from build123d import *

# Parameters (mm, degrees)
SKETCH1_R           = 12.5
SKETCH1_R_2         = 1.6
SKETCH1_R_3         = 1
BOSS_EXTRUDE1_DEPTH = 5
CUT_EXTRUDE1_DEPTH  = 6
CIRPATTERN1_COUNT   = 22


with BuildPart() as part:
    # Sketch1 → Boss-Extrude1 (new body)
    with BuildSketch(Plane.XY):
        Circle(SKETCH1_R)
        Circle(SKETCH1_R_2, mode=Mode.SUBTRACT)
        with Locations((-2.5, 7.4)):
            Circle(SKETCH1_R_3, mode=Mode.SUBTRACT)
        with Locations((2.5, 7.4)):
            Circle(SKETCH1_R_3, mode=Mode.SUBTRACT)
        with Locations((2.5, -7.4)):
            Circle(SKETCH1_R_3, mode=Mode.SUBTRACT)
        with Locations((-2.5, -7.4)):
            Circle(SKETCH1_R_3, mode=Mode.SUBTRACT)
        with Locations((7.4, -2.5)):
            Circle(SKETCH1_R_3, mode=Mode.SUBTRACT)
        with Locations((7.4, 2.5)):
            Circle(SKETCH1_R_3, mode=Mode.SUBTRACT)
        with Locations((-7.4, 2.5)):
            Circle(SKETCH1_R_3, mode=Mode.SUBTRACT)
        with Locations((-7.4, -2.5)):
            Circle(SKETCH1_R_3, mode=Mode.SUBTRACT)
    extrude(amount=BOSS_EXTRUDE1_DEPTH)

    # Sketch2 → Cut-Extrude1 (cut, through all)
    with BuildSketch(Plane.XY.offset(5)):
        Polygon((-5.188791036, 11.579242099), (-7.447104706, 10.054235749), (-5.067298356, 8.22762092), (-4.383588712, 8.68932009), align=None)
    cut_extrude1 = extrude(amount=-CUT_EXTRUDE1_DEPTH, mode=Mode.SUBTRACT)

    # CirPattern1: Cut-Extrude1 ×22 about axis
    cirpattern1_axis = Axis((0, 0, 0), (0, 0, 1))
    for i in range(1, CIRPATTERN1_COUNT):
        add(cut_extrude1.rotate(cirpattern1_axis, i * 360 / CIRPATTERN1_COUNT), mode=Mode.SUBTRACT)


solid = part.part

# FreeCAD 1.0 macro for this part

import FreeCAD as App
import Part
import Sketcher
from FreeCAD import Vector
Q = App.Units.Quantity

doc = App.newDocument("Part")
body = doc.addObject("PartDesign::Body", "Body")

sketch1 = body.newObject("Sketcher::SketchObject", "Sketch")
sketch1.AttachmentSupport = (doc.getObject("XY_Plane"), [""])
sketch1.MapMode = "FlatFace"
sketch1.addGeometry([
    Part.Circle(Vector(0, 0, 0), Vector(0, 0, 1), 12.5),
    Part.Circle(Vector(-2.5, -7.4, 0), Vector(0, 0, 1), 1),
    Part.Circle(Vector(-7.4, -2.5, 0), Vector(0, 0, 1), 1),
    Part.Circle(Vector(2.5, -7.4, 0), Vector(0, 0, 1), 1),
    Part.Circle(Vector(7.4, -2.5, 0), Vector(0, 0, 1), 1),
    Part.Circle(Vector(-7.4, 2.5, 0), Vector(0, 0, 1), 1),
    Part.Circle(Vector(-2.5, 7.4, 0), Vector(0, 0, 1), 1),
    Part.Circle(Vector(0, 0, 0), Vector(0, 0, 1), 1.6),
    Part.Circle(Vector(7.4, 2.5, 0), Vector(0, 0, 1), 1),
    Part.Circle(Vector(2.5, 7.4, 0), Vector(0, 0, 1), 1),
], False)
sketch1.addConstraint([
    Sketcher.Constraint("Coincident", 0, 3, -1, 1),
    Sketcher.Constraint("Coincident", 7, 3, -1, 1),
    Sketcher.Constraint("Equal", 1, 2),
    Sketcher.Constraint("Equal", 2, 3),
    Sketcher.Constraint("Equal", 3, 4),
    Sketcher.Constraint("Equal", 4, 5),
    Sketcher.Constraint("Equal", 5, 6),
    Sketcher.Constraint("Equal", 6, 8),
    Sketcher.Constraint("Equal", 8, 9),
    Sketcher.Constraint("Symmetric", 4, 3, 5, 3, -1, 1),
    Sketcher.Constraint("Symmetric", 3, 3, 6, 3, -1, 1),
    Sketcher.Constraint("Symmetric", 2, 3, 8, 3, -1, 1),
    Sketcher.Constraint("Symmetric", 1, 3, 9, 3, -1, 1),
    Sketcher.Constraint("Symmetric", 1, 3, 3, 3, -2),
    Sketcher.Constraint("Symmetric", 2, 3, 4, 3, -2),
    Sketcher.Constraint("Diameter", 0, Q("25 mm")),
    Sketcher.Constraint("Diameter", 1, Q("2 mm")),
    Sketcher.Constraint("Diameter", 7, Q("3.2 mm")),
    Sketcher.Constraint("DistanceX", 1, 3, 3, 3, Q("5 mm")),
    Sketcher.Constraint("DistanceY", 2, 3, 5, 3, Q("5 mm")),
    Sketcher.Constraint("DistanceY", 1, 3, -1, 1, Q("7.4 mm")),
    Sketcher.Constraint("DistanceX", 2, 3, -1, 1, Q("7.4 mm")),
])
pad1 = body.newObject("PartDesign::Pad", "Pad")
pad1.Profile = sketch1
pad1.Length = 5

sketch2 = body.newObject("Sketcher::SketchObject", "Sketch001")
sketch2.AttachmentSupport = (doc.getObject("XY_Plane"), [""])
sketch2.MapMode = "FlatFace"
sketch2.AttachmentOffset = App.Placement(Vector(0, 0, 5), App.Rotation())
sketch2.addGeometry([
    Part.LineSegment(Vector(-5.2, 11.6, 0), Vector(-7.4, 10.1, 0)),
    Part.LineSegment(Vector(-7.4, 10.1, 0), Vector(-5.1, 8.2, 0)),
    Part.LineSegment(Vector(-5.1, 8.2, 0), Vector(-4.4, 8.7, 0)),
    Part.LineSegment(Vector(-4.4, 8.7, 0), Vector(-5.2, 11.6, 0)),
], False)
sketch2.addConstraint([
    Sketcher.Constraint("Coincident", 0, 2, 1, 1),
    Sketcher.Constraint("Coincident", 1, 2, 2, 1),
    Sketcher.Constraint("Coincident", 2, 2, 3, 1),
    Sketcher.Constraint("Coincident", 3, 2, 0, 1),
    Sketcher.Constraint("Parallel", 0, 2),
    Sketcher.Constraint("Equal", 1, 3),
    Sketcher.Constraint("Distance", 1, Q("3 mm")),
    Sketcher.Constraint("Distance", 0, Q("2.725 mm")),
    Sketcher.Constraint("Distance", 2, Q("0.825 mm")),
    Sketcher.Constraint("DistanceX", 1, 2, -1, 1, Q("5.067298 mm")),
    Sketcher.Constraint("DistanceY", 1, 2, 2, 2, Q("0.461699 mm")),
    Sketcher.Constraint("DistanceY", -1, 1, 1, 2, Q("8.227621 mm")),
])
pocket1 = body.newObject("PartDesign::Pocket", "Pocket")
pocket1.Profile = sketch2
pocket1.Type = "ThroughAll"
doc.recompute()

polarpattern = body.newObject("PartDesign::PolarPattern", "PolarPattern")
polarpattern.Originals = [pocket1]
polarpattern.Axis = (doc.getObject("Z_Axis"), [""])
polarpattern.Angle = 360
polarpattern.Occurrences = 22
body.Tip = polarpattern

doc.recompute()
